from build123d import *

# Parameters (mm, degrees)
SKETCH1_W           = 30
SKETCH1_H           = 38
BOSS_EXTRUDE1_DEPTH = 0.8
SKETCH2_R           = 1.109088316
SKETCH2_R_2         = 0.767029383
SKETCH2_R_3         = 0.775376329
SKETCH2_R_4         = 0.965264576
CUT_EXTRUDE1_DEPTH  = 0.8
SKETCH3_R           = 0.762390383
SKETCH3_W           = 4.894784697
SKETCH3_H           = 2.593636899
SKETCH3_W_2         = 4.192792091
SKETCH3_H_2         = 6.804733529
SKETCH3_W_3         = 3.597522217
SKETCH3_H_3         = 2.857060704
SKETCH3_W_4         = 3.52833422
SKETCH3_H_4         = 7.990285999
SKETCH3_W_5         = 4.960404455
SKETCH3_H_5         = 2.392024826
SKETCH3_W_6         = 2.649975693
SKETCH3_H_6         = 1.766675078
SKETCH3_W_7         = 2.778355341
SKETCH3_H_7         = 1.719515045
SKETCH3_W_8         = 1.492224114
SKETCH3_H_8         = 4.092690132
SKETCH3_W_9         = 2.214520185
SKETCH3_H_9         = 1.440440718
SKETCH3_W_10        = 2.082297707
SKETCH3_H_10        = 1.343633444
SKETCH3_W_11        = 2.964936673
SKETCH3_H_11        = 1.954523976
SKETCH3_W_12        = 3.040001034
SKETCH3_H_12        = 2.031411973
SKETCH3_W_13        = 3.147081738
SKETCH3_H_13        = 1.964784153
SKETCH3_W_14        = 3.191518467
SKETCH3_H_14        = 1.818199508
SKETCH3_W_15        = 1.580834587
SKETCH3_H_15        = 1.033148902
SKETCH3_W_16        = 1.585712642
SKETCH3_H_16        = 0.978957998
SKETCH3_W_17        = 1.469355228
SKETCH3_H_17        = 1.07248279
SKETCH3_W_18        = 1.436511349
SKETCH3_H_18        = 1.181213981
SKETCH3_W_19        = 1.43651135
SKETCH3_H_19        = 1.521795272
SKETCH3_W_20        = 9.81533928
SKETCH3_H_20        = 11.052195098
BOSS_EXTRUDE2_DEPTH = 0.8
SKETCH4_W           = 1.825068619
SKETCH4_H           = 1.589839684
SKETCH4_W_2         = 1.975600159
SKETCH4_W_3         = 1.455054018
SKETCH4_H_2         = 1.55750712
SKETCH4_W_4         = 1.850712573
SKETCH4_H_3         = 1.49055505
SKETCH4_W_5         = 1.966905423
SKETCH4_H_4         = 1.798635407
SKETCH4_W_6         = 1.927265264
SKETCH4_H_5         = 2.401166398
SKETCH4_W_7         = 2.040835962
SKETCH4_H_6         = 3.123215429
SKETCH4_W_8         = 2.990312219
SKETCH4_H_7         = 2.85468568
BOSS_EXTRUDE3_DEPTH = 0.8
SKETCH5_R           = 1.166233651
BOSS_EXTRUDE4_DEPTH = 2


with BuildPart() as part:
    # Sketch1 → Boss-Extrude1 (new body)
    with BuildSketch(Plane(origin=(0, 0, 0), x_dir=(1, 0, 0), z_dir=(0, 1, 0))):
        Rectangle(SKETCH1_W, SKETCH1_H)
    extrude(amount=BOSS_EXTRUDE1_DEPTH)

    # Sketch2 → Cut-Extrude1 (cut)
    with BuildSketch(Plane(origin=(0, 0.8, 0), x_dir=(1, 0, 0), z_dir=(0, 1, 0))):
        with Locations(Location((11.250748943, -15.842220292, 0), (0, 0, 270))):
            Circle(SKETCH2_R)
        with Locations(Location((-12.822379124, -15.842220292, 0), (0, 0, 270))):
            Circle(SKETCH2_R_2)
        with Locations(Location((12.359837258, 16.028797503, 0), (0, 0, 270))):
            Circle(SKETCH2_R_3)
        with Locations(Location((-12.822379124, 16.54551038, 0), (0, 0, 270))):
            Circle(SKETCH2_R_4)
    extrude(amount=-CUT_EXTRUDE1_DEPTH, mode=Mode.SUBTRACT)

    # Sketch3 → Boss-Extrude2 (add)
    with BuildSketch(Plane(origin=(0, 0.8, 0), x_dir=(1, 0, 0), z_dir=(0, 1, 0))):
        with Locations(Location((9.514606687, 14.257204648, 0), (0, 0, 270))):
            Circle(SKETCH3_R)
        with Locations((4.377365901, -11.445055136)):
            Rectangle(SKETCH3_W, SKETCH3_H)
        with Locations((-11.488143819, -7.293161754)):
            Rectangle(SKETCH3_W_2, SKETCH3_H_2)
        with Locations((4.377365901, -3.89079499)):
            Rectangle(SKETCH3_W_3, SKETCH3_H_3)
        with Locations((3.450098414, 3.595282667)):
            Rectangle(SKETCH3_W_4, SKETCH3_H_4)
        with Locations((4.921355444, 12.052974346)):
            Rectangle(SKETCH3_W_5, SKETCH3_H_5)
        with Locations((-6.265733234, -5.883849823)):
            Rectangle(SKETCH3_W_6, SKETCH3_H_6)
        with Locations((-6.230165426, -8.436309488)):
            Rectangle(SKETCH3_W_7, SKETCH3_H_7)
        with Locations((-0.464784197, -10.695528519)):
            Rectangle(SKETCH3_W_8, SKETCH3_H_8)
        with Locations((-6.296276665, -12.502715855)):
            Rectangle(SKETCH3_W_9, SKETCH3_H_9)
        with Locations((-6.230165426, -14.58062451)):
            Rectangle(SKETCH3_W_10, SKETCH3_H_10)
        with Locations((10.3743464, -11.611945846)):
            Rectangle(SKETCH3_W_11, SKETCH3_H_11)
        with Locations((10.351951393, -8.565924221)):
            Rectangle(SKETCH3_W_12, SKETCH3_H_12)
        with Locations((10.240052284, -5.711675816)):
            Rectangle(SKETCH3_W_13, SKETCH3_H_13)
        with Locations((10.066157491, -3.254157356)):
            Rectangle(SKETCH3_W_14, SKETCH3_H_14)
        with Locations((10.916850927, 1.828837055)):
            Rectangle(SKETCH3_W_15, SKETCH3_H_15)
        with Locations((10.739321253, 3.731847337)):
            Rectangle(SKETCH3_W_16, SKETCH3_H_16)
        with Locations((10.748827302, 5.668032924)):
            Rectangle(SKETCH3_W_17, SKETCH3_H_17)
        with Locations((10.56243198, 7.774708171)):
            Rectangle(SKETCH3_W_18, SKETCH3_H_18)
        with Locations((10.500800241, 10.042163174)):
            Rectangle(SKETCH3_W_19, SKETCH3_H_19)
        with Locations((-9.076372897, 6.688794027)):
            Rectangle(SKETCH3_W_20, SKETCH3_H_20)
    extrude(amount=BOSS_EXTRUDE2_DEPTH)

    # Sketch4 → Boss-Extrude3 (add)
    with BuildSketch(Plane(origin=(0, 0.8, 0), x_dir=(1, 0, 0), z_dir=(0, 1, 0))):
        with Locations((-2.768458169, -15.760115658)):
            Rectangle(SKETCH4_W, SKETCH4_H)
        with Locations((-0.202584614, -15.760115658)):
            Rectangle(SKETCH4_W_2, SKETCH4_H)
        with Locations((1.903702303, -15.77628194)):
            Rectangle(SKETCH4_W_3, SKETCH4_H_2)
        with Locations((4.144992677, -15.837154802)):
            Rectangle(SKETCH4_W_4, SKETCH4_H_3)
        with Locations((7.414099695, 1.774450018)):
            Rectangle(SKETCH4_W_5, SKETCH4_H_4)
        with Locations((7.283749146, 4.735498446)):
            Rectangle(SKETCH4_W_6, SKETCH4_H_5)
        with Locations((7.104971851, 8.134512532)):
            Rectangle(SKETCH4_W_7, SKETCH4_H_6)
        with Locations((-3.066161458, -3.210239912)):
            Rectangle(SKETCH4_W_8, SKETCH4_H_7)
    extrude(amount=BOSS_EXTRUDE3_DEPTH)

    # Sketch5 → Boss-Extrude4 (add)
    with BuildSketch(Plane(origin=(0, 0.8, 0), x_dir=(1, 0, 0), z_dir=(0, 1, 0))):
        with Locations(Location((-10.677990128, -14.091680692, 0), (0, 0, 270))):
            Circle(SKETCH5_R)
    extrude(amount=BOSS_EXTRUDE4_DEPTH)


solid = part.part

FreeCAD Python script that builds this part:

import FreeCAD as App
import Part
import Sketcher

V = App.Vector
Q = App.Units.Quantity


def add_polygon(sketch, points):
    """Adds a closed chain of lines whose ends are joined by coincident constraints."""
    first, n = sketch.GeometryCount, len(points)
    for a, b in zip(points, points[1:] + points[:1]):
        sketch.addGeometry(Part.LineSegment(App.Vector(*a, 0), App.Vector(*b, 0)), False)
    for i in range(n):
        sketch.addConstraint(Sketcher.Constraint("Coincident", first + i, 2, first + (i + 1) % n, 1))

doc = App.newDocument("Part")
body = doc.addObject("PartDesign::Body", "Body")

sketch1 = body.newObject("Sketcher::SketchObject", "Sketch")
sketch1.AttachmentSupport = (doc.getObject("XZ_Plane"), [""])
sketch1.MapMode = "FlatFace"
add_polygon(sketch1, [(-15, -19), (-15, 19), (15, 19), (15, -19)])
sketch1.addConstraint(Sketcher.Constraint("Vertical", 0))
sketch1.addConstraint(Sketcher.Constraint("Horizontal", 1))
sketch1.addConstraint(Sketcher.Constraint("Vertical", 2))
sketch1.addConstraint(Sketcher.Constraint("Horizontal", 3))
sketch1.addConstraint(Sketcher.Constraint("Symmetric", 0, 2, 2, 2, -1, 1))
sketch1.addConstraint(Sketcher.Constraint("DistanceX", 1, 1, 1, 2, Q("30 mm")))
sketch1.addConstraint(Sketcher.Constraint("DistanceY", 0, 1, 0, 2, Q("38 mm")))
pad1 = body.newObject("PartDesign::Pad", "Pad")
pad1.Profile = sketch1
pad1.Length = 0.8
pad1.Reversed = True

sketch2 = body.newObject("Sketcher::SketchObject", "Sketch001")
sketch2.AttachmentSupport = (doc.getObject("XZ_Plane"), [""])
sketch2.MapMode = "FlatFace"
sketch2.AttachmentOffset = App.Placement(V(0, 0, -0.8), App.Rotation())
sketch2.addGeometry(Part.Circle(V(11.250749, 15.84222, 0), V(0, 0, 1), 1.109088), False)
sketch2.addGeometry(Part.Circle(V(-12.822379, 15.84222, 0), V(0, 0, 1), 0.767029), False)
sketch2.addGeometry(Part.Circle(V(12.359837, -16.028798, 0), V(0, 0, 1), 0.775376), False)
sketch2.addGeometry(Part.Circle(V(-12.822379, -16.54551, 0), V(0, 0, 1), 0.965265), False)
sketch2.addConstraint(Sketcher.Constraint("Horizontal", 0, 3, 1, 3))
sketch2.addConstraint(Sketcher.Constraint("Vertical", 1, 3, 3, 3))
sketch2.addConstraint(Sketcher.Constraint("Diameter", 1, Q("1.534059 mm")))
sketch2.addConstraint(Sketcher.Constraint("Diameter", 3, Q("1.930529 mm")))
sketch2.addConstraint(Sketcher.Constraint("Diameter", 0, Q("2.218177 mm")))
sketch2.addConstraint(Sketcher.Constraint("Diameter", 2, Q("1.550753 mm")))
sketch2.addConstraint(Sketcher.Constraint("DistanceX", -1, 1, 0, 3, Q("11.250749 mm")))
sketch2.addConstraint(Sketcher.Constraint("DistanceY", -1, 1, 0, 3, Q("15.84222 mm")))
sketch2.addConstraint(Sketcher.Constraint("DistanceX", 1, 3, -1, 1, Q("12.822379 mm")))
sketch2.addConstraint(Sketcher.Constraint("DistanceY", 3, 3, -1, 1, Q("16.54551 mm")))
sketch2.addConstraint(Sketcher.Constraint("DistanceX", 0, 3, 2, 3, Q("1.109088 mm")))
sketch2.addConstraint(Sketcher.Constraint("DistanceY", 2, 3, -1, 1, Q("16.028798 mm")))
pocket1 = body.newObject("PartDesign::Pocket", "Pocket")
pocket1.Profile = sketch2
pocket1.Length = 0.8
pocket1.Reversed = True

sketch3 = body.newObject("Sketcher::SketchObject", "Sketch002")
sketch3.AttachmentSupport = (doc.getObject("XZ_Plane"), [""])
sketch3.MapMode = "FlatFace"
sketch3.AttachmentOffset = App.Placement(V(0, 0, -0.8), App.Rotation())
sketch3.addGeometry(Part.Circle(V(9.514607, -14.257205, 0), V(0, 0, 1), 0.76239), False)
add_polygon(sketch3, [(1.929974, 10.148237), (1.929974, 12.741874), (6.824758, 12.741874), (6.824758, 10.148237)])
add_polygon(sketch3, [(-13.58454, 3.890795), (-13.58454, 10.695529), (-9.391748, 10.695529), (-9.391748, 3.890795)])
add_polygon(sketch3, [(2.578605, 2.462265), (2.578605, 5.319325), (6.176127, 5.319325), (6.176127, 2.462265)])
add_polygon(sketch3, [(1.685931, -7.590426), (1.685931, 0.39986), (5.214266, 0.39986), (5.214266, -7.590426)])
add_polygon(sketch3, [(2.441153, -13.248987), (2.441153, -10.856962), (7.401558, -10.856962), (7.401558, -13.248987)])
add_polygon(sketch3, [(-7.590721, 5.000512), (-7.590721, 6.767187), (-4.940745, 6.767187), (-4.940745, 5.000512)])
add_polygon(sketch3, [(-7.619343, 7.576552), (-7.619343, 9.296067), (-4.840988, 9.296067), (-4.840988, 7.576552)])
add_polygon(sketch3, [(-1.210896, 8.649183), (-1.210896, 12.741874), (0.281328, 12.741874), (0.281328, 8.649183)])
add_polygon(sketch3, [(-7.403537, 11.782495), (-7.403537, 13.222936), (-5.189017, 13.222936), (-5.189017, 11.782495)])
add_polygon(sketch3, [(-7.271314, 13.908808), (-7.271314, 15.252441), (-5.189017, 15.252441), (-5.189017, 13.908808)])
add_polygon(sketch3, [(8.891878, 10.634684), (8.891878, 12.589208), (11.856815, 12.589208), (11.856815, 10.634684)])
add_polygon(sketch3, [(8.831951, 7.550218), (8.831951, 9.58163), (11.871952, 9.58163), (11.871952, 7.550218)])
add_polygon(sketch3, [(8.666511, 4.729284), (8.666511, 6.694068), (11.813593, 6.694068), (11.813593, 4.729284)])
add_polygon(sketch3, [(8.470398, 2.345058), (8.470398, 4.163257), (11.661917, 4.163257), (11.661917, 2.345058)])
add_polygon(sketch3, [(10.126434, -2.345412), (10.126434, -1.312263), (11.707268, -1.312263), (11.707268, -2.345412)])
add_polygon(sketch3, [(9.946465, -4.221326), (9.946465, -3.242368), (11.532178, -3.242368), (11.532178, -4.221326)])
add_polygon(sketch3, [(10.01415, -6.204274), (10.01415, -5.131792), (11.483505, -5.131792), (11.483505, -6.204274)])
add_polygon(sketch3, [(9.844176, -8.365315), (9.844176, -7.184101), (11.280688, -7.184101), (11.280688, -8.365315)])
add_polygon(sketch3, [(9.782545, -10.803061), (9.782545, -9.281266), (11.219056, -9.281266), (11.219056, -10.803061)])
add_polygon(sketch3, [(-13.984043, -12.214892), (-13.984043, -1.162696), (-4.168703, -1.162696), (-4.168703, -12.214892)])
sketch3.addConstraint(Sketcher.Constraint("Vertical", 1))
sketch3.addConstraint(Sketcher.Constraint("Horizontal", 2))
sketch3.addConstraint(Sketcher.Constraint("Vertical", 3))
sketch3.addConstraint(Sketcher.Constraint("Horizontal", 4))
sketch3.addConstraint(Sketcher.Constraint("Vertical", 5))
sketch3.addConstraint(Sketcher.Constraint("Horizontal", 6))
sketch3.addConstraint(Sketcher.Constraint("Vertical", 7))
sketch3.addConstraint(Sketcher.Constraint("Horizontal", 8))
sketch3.addConstraint(Sketcher.Constraint("Vertical", 9))
sketch3.addConstraint(Sketcher.Constraint("Horizontal", 10))
sketch3.addConstraint(Sketcher.Constraint("Vertical", 11))
sketch3.addConstraint(Sketcher.Constraint("Horizontal", 12))
sketch3.addConstraint(Sketcher.Constraint("Vertical", 13))
sketch3.addConstraint(Sketcher.Constraint("Horizontal", 14))
sketch3.addConstraint(Sketcher.Constraint("Vertical", 15))
sketch3.addConstraint(Sketcher.Constraint("Horizontal", 16))
sketch3.addConstraint(Sketcher.Constraint("Vertical", 17))
sketch3.addConstraint(Sketcher.Constraint("Horizontal", 18))
sketch3.addConstraint(Sketcher.Constraint("Vertical", 19))
sketch3.addConstraint(Sketcher.Constraint("Horizontal", 20))
sketch3.addConstraint(Sketcher.Constraint("Vertical", 21))
sketch3.addConstraint(Sketcher.Constraint("Horizontal", 22))
sketch3.addConstraint(Sketcher.Constraint("Vertical", 23))
sketch3.addConstraint(Sketcher.Constraint("Horizontal", 24))
sketch3.addConstraint(Sketcher.Constraint("Vertical", 25))
sketch3.addConstraint(Sketcher.Constraint("Horizontal", 26))
sketch3.addConstraint(Sketcher.Constraint("Vertical", 27))
sketch3.addConstraint(Sketcher.Constraint("Horizontal", 28))
sketch3.addConstraint(Sketcher.Constraint("Vertical", 29))
sketch3.addConstraint(Sketcher.Constraint("Horizontal", 30))
sketch3.addConstraint(Sketcher.Constraint("Vertical", 31))
sketch3.addConstraint(Sketcher.Constraint("Horizontal", 32))
sketch3.addConstraint(Sketcher.Constraint("Vertical", 33))
sketch3.addConstraint(Sketcher.Constraint("Horizontal", 34))
sketch3.addConstraint(Sketcher.Constraint("Vertical", 35))
sketch3.addConstraint(Sketcher.Constraint("Horizontal", 36))
sketch3.addConstraint(Sketcher.Constraint("Vertical", 37))
sketch3.addConstraint(Sketcher.Constraint("Horizontal", 38))
sketch3.addConstraint(Sketcher.Constraint("Vertical", 39))
sketch3.addConstraint(Sketcher.Constraint("Horizontal", 40))
sketch3.addConstraint(Sketcher.Constraint("Vertical", 41))
sketch3.addConstraint(Sketcher.Constraint("Horizontal", 42))
sketch3.addConstraint(Sketcher.Constraint("Vertical", 43))
sketch3.addConstraint(Sketcher.Constraint("Horizontal", 44))
sketch3.addConstraint(Sketcher.Constraint("Vertical", 45))
sketch3.addConstraint(Sketcher.Constraint("Horizontal", 46))
sketch3.addConstraint(Sketcher.Constraint("Vertical", 47))
sketch3.addConstraint(Sketcher.Constraint("Horizontal", 48))
sketch3.addConstraint(Sketcher.Constraint("Vertical", 49))
sketch3.addConstraint(Sketcher.Constraint("Horizontal", 50))
sketch3.addConstraint(Sketcher.Constraint("Vertical", 51))
sketch3.addConstraint(Sketcher.Constraint("Horizontal", 52))
sketch3.addConstraint(Sketcher.Constraint("Vertical", 53))
sketch3.addConstraint(Sketcher.Constraint("Horizontal", 54))
sketch3.addConstraint(Sketcher.Constraint("Vertical", 55))
sketch3.addConstraint(Sketcher.Constraint("Horizontal", 56))
sketch3.addConstraint(Sketcher.Constraint("Vertical", 57))
sketch3.addConstraint(Sketcher.Constraint("Horizontal", 58))
sketch3.addConstraint(Sketcher.Constraint("Vertical", 59))
sketch3.addConstraint(Sketcher.Constraint("Horizontal", 60))
sketch3.addConstraint(Sketcher.Constraint("Vertical", 61))
sketch3.addConstraint(Sketcher.Constraint("Horizontal", 62))
sketch3.addConstraint(Sketcher.Constraint("Vertical", 63))
sketch3.addConstraint(Sketcher.Constraint("Horizontal", 64))
sketch3.addConstraint(Sketcher.Constraint("Vertical", 65))
sketch3.addConstraint(Sketcher.Constraint("Horizontal", 66))
sketch3.addConstraint(Sketcher.Constraint("Vertical", 67))
sketch3.addConstraint(Sketcher.Constraint("Horizontal", 68))
sketch3.addConstraint(Sketcher.Constraint("Vertical", 69))
sketch3.addConstraint(Sketcher.Constraint("Horizontal", 70))
sketch3.addConstraint(Sketcher.Constraint("Vertical", 71))
sketch3.addConstraint(Sketcher.Constraint("Horizontal", 72))
sketch3.addConstraint(Sketcher.Constraint("Vertical", 73))
sketch3.addConstraint(Sketcher.Constraint("Horizontal", 74))
sketch3.addConstraint(Sketcher.Constraint("Vertical", 75))
sketch3.addConstraint(Sketcher.Constraint("Horizontal", 76))
sketch3.addConstraint(Sketcher.Constraint("Vertical", 77))
sketch3.addConstraint(Sketcher.Constraint("Horizontal", 78))
sketch3.addConstraint(Sketcher.Constraint("Vertical", 79))
sketch3.addConstraint(Sketcher.Constraint("Horizontal", 80))
sketch3.addConstraint(Sketcher.Constraint("Horizontal", 2, 2, 29, 2))
sketch3.addConstraint(Sketcher.Constraint("Vertical", 35, 2, 38, 2))
sketch3.addConstraint(Sketcher.Constraint("Equal", 72, 74))
sketch3.addConstraint(Sketcher.Constraint("DistanceX", 46, 1, 46, 2, Q("3.040001 mm")))
sketch3.addConstraint(Sketcher.Constraint("Diameter", 0, Q("1.524781 mm")))
sketch3.addConstraint(Sketcher.Constraint("DistanceY", 53, 1, 53, 2, Q("1.8182 mm")))
sketch3.addConstraint(Sketcher.Constraint("DistanceX", 34, 1, 34, 2, Q("2.21452 mm")))
sketch3.addConstraint(Sketcher.Constraint("DistanceX", 50, 1, 50, 2, Q("3.147082 mm")))
sketch3.addConstraint(Sketcher.Constraint("DistanceX", 54, 1, 54, 2, Q("3.191518 mm")))
sketch3.addConstraint(Sketcher.Constraint("DistanceX", 70, 1, 70, 2, Q("1.436511 mm")))
sketch3.addConstraint(Sketcher.Constraint("DistanceX", 78, 1, 78, 2, Q("9.815339 mm")))
sketch3.addConstraint(Sketcher.Constraint("DistanceY", 9, 1, 9, 2, Q("2.857061 mm")))
sketch3.addConstraint(Sketcher.Constraint("DistanceY", 29, 1, 29, 2, Q("4.09269 mm")))
sketch3.addConstraint(Sketcher.Constraint("DistanceY", 33, 1, 33, 2, Q("1.440441 mm")))
sketch3.addConstraint(Sketcher.Constraint("DistanceY", 45, 1, 45, 2, Q("2.031412 mm")))
sketch3.addConstraint(Sketcher.Constraint("DistanceY", 57, 1, 57, 2, Q("1.033149 mm")))
sketch3.addConstraint(Sketcher.Constraint("DistanceX", -1, 1, 53, 2, Q("8.470398 mm")))
sketch3.addConstraint(Sketcher.Constraint("DistanceY", 69, 2, -1, 1, Q("7.184101 mm")))
sketch3.addConstraint(Sketcher.Constraint("DistanceX", 2, 1, 2, 2, Q("4.894785 mm")))
sketch3.addConstraint(Sketcher.Constraint("DistanceX", 6, 1, 6, 2, Q("4.192792 mm")))
sketch3.addConstraint(Sketcher.Constraint("DistanceX", 10, 1, 10, 2, Q("3.597522 mm")))
sketch3.addConstraint(Sketcher.Constraint("DistanceX", 14, 1, 14, 2, Q("3.528334 mm")))
sketch3.addConstraint(Sketcher.Constraint("DistanceX", 18, 1, 18, 2, Q("4.960404 mm")))
sketch3.addConstraint(Sketcher.Constraint("DistanceX", 22, 1, 22, 2, Q("2.649976 mm")))
sketch3.addConstraint(Sketcher.Constraint("DistanceX", 26, 1, 26, 2, Q("2.778355 mm")))
sketch3.addConstraint(Sketcher.Constraint("DistanceX", 30, 1, 30, 2, Q("1.492224 mm")))
sketch3.addConstraint(Sketcher.Constraint("DistanceX", 38, 1, 38, 2, Q("2.082298 mm")))
sketch3.addConstraint(Sketcher.Constraint("DistanceX", 42, 1, 42, 2, Q("2.964937 mm")))
sketch3.addConstraint(Sketcher.Constraint("DistanceX", 58, 1, 58, 2, Q("1.580835 mm")))
sketch3.addConstraint(Sketcher.Constraint("DistanceX", 62, 1, 62, 2, Q("1.585713 mm")))
sketch3.addConstraint(Sketcher.Constraint("DistanceX", 66, 1, 66, 2, Q("1.469355 mm")))
sketch3.addConstraint(Sketcher.Constraint("DistanceY", 1, 1, 1, 2, Q("2.593637 mm")))
sketch3.addConstraint(Sketcher.Constraint("DistanceY", 5, 1, 5, 2, Q("6.804734 mm")))
sketch3.addConstraint(Sketcher.Constraint("DistanceY", 13, 1, 13, 2, Q("7.990286 mm")))
sketch3.addConstraint(Sketcher.Constraint("DistanceY", 17, 1, 17, 2, Q("2.392025 mm")))
sketch3.addConstraint(Sketcher.Constraint("DistanceY", 21, 1, 21, 2, Q("1.766675 mm")))
sketch3.addConstraint(Sketcher.Constraint("DistanceY", 25, 1, 25, 2, Q("1.719515 mm")))
sketch3.addConstraint(Sketcher.Constraint("DistanceY", 37, 1, 37, 2, Q("1.343633 mm")))
sketch3.addConstraint(Sketcher.Constraint("DistanceY", 41, 1, 41, 2, Q("1.954524 mm")))
sketch3.addConstraint(Sketcher.Constraint("DistanceY", 49, 1, 49, 2, Q("1.964784 mm")))
sketch3.addConstraint(Sketcher.Constraint("DistanceY", 61, 1, 61, 2, Q("0.978958 mm")))
sketch3.addConstraint(Sketcher.Constraint("DistanceY", 65, 1, 65, 2, Q("1.072483 mm")))
sketch3.addConstraint(Sketcher.Constraint("DistanceY", 69, 1, 69, 2, Q("1.181214 mm")))
sketch3.addConstraint(Sketcher.Constraint("DistanceY", 73, 1, 73, 2, Q("1.521795 mm")))
sketch3.addConstraint(Sketcher.Constraint("DistanceY", 77, 1, 77, 2, Q("11.052195 mm")))
sketch3.addConstraint(Sketcher.Constraint("DistanceX", -1, 1, 2, 2, Q("6.824758 mm")))
sketch3.addConstraint(Sketcher.Constraint("DistanceX", 5, 2, -1, 1, Q("13.58454 mm")))
sketch3.addConstraint(Sketcher.Constraint("DistanceY", -1, 1, 5, 2, Q("10.695529 mm")))
sketch3.addConstraint(Sketcher.Constraint("DistanceX", -1, 1, 13, 2, Q("1.685931 mm")))
sketch3.addConstraint(Sketcher.Constraint("DistanceY", -1, 1, 13, 2, Q("0.39986 mm")))
sketch3.addConstraint(Sketcher.Constraint("DistanceY", 17, 2, -1, 1, Q("10.856962 mm")))
sketch3.addConstraint(Sketcher.Constraint("DistanceX", 21, 2, -1, 1, Q("7.590721 mm")))
sketch3.addConstraint(Sketcher.Constraint("DistanceY", -1, 1, 27, 2, Q("7.576552 mm")))
sketch3.addConstraint(Sketcher.Constraint("DistanceY", -1, 1, 37, 2, Q("15.252441 mm")))
sketch3.addConstraint(Sketcher.Constraint("DistanceX", -1, 1, 41, 2, Q("8.891878 mm")))
sketch3.addConstraint(Sketcher.Constraint("DistanceX", -1, 1, 45, 2, Q("8.831951 mm")))
sketch3.addConstraint(Sketcher.Constraint("DistanceY", -1, 1, 45, 2, Q("9.58163 mm")))
sketch3.addConstraint(Sketcher.Constraint("DistanceX", -1, 1, 49, 2, Q("8.666511 mm")))
sketch3.addConstraint(Sketcher.Constraint("DistanceX", -1, 1, 58, 2, Q("11.707268 mm")))
sketch3.addConstraint(Sketcher.Constraint("DistanceY", 59, 2, -1, 1, Q("2.345412 mm")))
sketch3.addConstraint(Sketcher.Constraint("DistanceY", 61, 2, -1, 1, Q("3.242368 mm")))
sketch3.addConstraint(Sketcher.Constraint("DistanceX", -1, 1, 65, 2, Q("10.01415 mm")))
sketch3.addConstraint(Sketcher.Constraint("DistanceY", 65, 2, -1, 1, Q("5.131792 mm")))
sketch3.addConstraint(Sketcher.Constraint("DistanceY", 75, 2, -1, 1, Q("10.803061 mm")))
sketch3.addConstraint(Sketcher.Constraint("DistanceY", 79, 2, -1, 1, Q("12.214892 mm")))
sketch3.addConstraint(Sketcher.Constraint("DistanceX", -1, 1, 0, 3, Q("9.514607 mm")))
sketch3.addConstraint(Sketcher.Constraint("DistanceY", 0, 3, -1, 1, Q("14.257205 mm")))
sketch3.addConstraint(Sketcher.Constraint("DistanceY", -1, 1, 1, 2, Q("12.741874 mm")))
sketch3.addConstraint(Sketcher.Constraint("DistanceX", -1, 1, 9, 2, Q("2.578605 mm")))
sketch3.addConstraint(Sketcher.Constraint("DistanceY", -1, 1, 9, 2, Q("5.319325 mm")))
sketch3.addConstraint(Sketcher.Constraint("DistanceX", -1, 1, 17, 2, Q("2.441153 mm")))
sketch3.addConstraint(Sketcher.Constraint("DistanceY", -1, 1, 21, 2, Q("6.767187 mm")))
sketch3.addConstraint(Sketcher.Constraint("DistanceX", 25, 2, -1, 1, Q("7.619343 mm")))
sketch3.addConstraint(Sketcher.Constraint("DistanceX", 29, 2, -1, 1, Q("1.210896 mm")))
sketch3.addConstraint(Sketcher.Constraint("DistanceX", 33, 2, -1, 1, Q("7.403537 mm")))
sketch3.addConstraint(Sketcher.Constraint("DistanceY", -1, 1, 33, 2, Q("13.222936 mm")))
sketch3.addConstraint(Sketcher.Constraint("DistanceY", -1, 1, 41, 2, Q("12.589208 mm")))
sketch3.addConstraint(Sketcher.Constraint("DistanceY", -1, 1, 49, 2, Q("6.694068 mm")))
sketch3.addConstraint(Sketcher.Constraint("DistanceY", -1, 1, 53, 2, Q("4.163257 mm")))
sketch3.addConstraint(Sketcher.Constraint("DistanceX", -1, 1, 61, 2, Q("9.946465 mm")))
sketch3.addConstraint(Sketcher.Constraint("DistanceX", -1, 1, 69, 2, Q("9.844176 mm")))
sketch3.addConstraint(Sketcher.Constraint("DistanceX", -1, 1, 73, 2, Q("9.782545 mm")))
sketch3.addConstraint(Sketcher.Constraint("DistanceX", 77, 2, -1, 1, Q("13.984043 mm")))
pad2 = body.newObject("PartDesign::Pad", "Pad001")
pad2.Profile = sketch3
pad2.Length = 0.8
pad2.Reversed = True

sketch4 = body.newObject("Sketcher::SketchObject", "Sketch003")
sketch4.AttachmentSupport = (doc.getObject("XZ_Plane"), [""])
sketch4.MapMode = "FlatFace"
sketch4.AttachmentOffset = App.Placement(V(0, 0, -0.8), App.Rotation())
add_polygon(sketch4, [(-3.680992, 14.965196), (-3.680992, 16.555035), (-1.855924, 16.555035), (-1.855924, 14.965196)])
add_polygon(sketch4, [(-1.190385, 14.965196), (-1.190385, 16.555035), (0.785215, 16.555035), (0.785215, 14.965196)])
add_polygon(sketch4, [(1.176175, 14.997528), (1.176175, 16.555035), (2.631229, 16.555035), (2.631229, 14.997528)])
add_polygon(sketch4, [(3.219636, 15.091877), (3.219636, 16.582432), (5.070349, 16.582432), (5.070349, 15.091877)])
add_polygon(sketch4, [(6.430647, -2.673768), (6.430647, -0.875132), (8.397552, -0.875132), (8.397552, -2.673768)])
add_polygon(sketch4, [(6.320117, -5.936082), (6.320117, -3.534915), (8.247382, -3.534915), (8.247382, -5.936082)])
add_polygon(sketch4, [(6.084554, -9.69612), (6.084554, -6.572905), (8.12539, -6.572905), (8.12539, -9.69612)])
add_polygon(sketch4, [(-4.561318, 1.782897), (-4.561318, 4.637583), (-1.571005, 4.637583), (-1.571005, 1.782897)])
sketch4.addConstraint(Sketcher.Constraint("Vertical", 0))
sketch4.addConstraint(Sketcher.Constraint("Horizontal", 1))
sketch4.addConstraint(Sketcher.Constraint("Vertical", 2))
sketch4.addConstraint(Sketcher.Constraint("Horizontal", 3))
sketch4.addConstraint(Sketcher.Constraint("Vertical", 4))
sketch4.addConstraint(Sketcher.Constraint("Horizontal", 5))
sketch4.addConstraint(Sketcher.Constraint("Vertical", 6))
sketch4.addConstraint(Sketcher.Constraint("Horizontal", 7))
sketch4.addConstraint(Sketcher.Constraint("Vertical", 8))
sketch4.addConstraint(Sketcher.Constraint("Horizontal", 9))
sketch4.addConstraint(Sketcher.Constraint("Vertical", 10))
sketch4.addConstraint(Sketcher.Constraint("Horizontal", 11))
sketch4.addConstraint(Sketcher.Constraint("Vertical", 12))
sketch4.addConstraint(Sketcher.Constraint("Horizontal", 13))
sketch4.addConstraint(Sketcher.Constraint("Vertical", 14))
sketch4.addConstraint(Sketcher.Constraint("Horizontal", 15))
sketch4.addConstraint(Sketcher.Constraint("Vertical", 16))
sketch4.addConstraint(Sketcher.Constraint("Horizontal", 17))
sketch4.addConstraint(Sketcher.Constraint("Vertical", 18))
sketch4.addConstraint(Sketcher.Constraint("Horizontal", 19))
sketch4.addConstraint(Sketcher.Constraint("Vertical", 20))
sketch4.addConstraint(Sketcher.Constraint("Horizontal", 21))
sketch4.addConstraint(Sketcher.Constraint("Vertical", 22))
sketch4.addConstraint(Sketcher.Constraint("Horizontal", 23))
sketch4.addConstraint(Sketcher.Constraint("Vertical", 24))
sketch4.addConstraint(Sketcher.Constraint("Horizontal", 25))
sketch4.addConstraint(Sketcher.Constraint("Vertical", 26))
sketch4.addConstraint(Sketcher.Constraint("Horizontal", 27))
sketch4.addConstraint(Sketcher.Constraint("Vertical", 28))
sketch4.addConstraint(Sketcher.Constraint("Horizontal", 29))
sketch4.addConstraint(Sketcher.Constraint("Vertical", 30))
sketch4.addConstraint(Sketcher.Constraint("Horizontal", 31))
sketch4.addConstraint(Sketcher.Constraint("Horizontal", 1, 2, 4, 2))
sketch4.addConstraint(Sketcher.Constraint("Horizontal", 3, 2, 6, 2))
sketch4.addConstraint(Sketcher.Constraint("Horizontal", 5, 2, 8, 2))
sketch4.addConstraint(Sketcher.Constraint("DistanceX", 5, 1, 5, 2, Q("1.9756 mm")))
sketch4.addConstraint(Sketcher.Constraint("DistanceX", 1, 1, 1, 2, Q("1.825069 mm")))
sketch4.addConstraint(Sketcher.Constraint("DistanceY", 0, 1, 0, 2, Q("1.58984 mm")))
sketch4.addConstraint(Sketcher.Constraint("DistanceX", 1, 2, 8, 2, Q("3.032099 mm")))
sketch4.addConstraint(Sketcher.Constraint("DistanceX", 14, 2, 16, 2, Q("1.360298 mm")))
sketch4.addConstraint(Sketcher.Constraint("DistanceX", 9, 1, 9, 2, Q("1.455054 mm")))
sketch4.addConstraint(Sketcher.Constraint("DistanceX", 13, 1, 13, 2, Q("1.850713 mm")))
sketch4.addConstraint(Sketcher.Constraint("DistanceX", 17, 1, 17, 2, Q("1.966905 mm")))
sketch4.addConstraint(Sketcher.Constraint("DistanceX", 21, 1, 21, 2, Q("1.927265 mm")))
sketch4.addConstraint(Sketcher.Constraint("DistanceX", 25, 1, 25, 2, Q("2.040836 mm")))
sketch4.addConstraint(Sketcher.Constraint("DistanceX", 29, 1, 29, 2, Q("2.990312 mm")))
sketch4.addConstraint(Sketcher.Constraint("DistanceY", 8, 1, 8, 2, Q("1.557507 mm")))
sketch4.addConstraint(Sketcher.Constraint("DistanceY", 12, 1, 12, 2, Q("1.490555 mm")))
sketch4.addConstraint(Sketcher.Constraint("DistanceY", 16, 1, 16, 2, Q("1.798635 mm")))
sketch4.addConstraint(Sketcher.Constraint("DistanceY", 20, 1, 20, 2, Q("2.401166 mm")))
sketch4.addConstraint(Sketcher.Constraint("DistanceY", 24, 1, 24, 2, Q("3.123215 mm")))
sketch4.addConstraint(Sketcher.Constraint("DistanceY", 28, 1, 28, 2, Q("2.854686 mm")))
sketch4.addConstraint(Sketcher.Constraint("DistanceX", -1, 1, 9, 2, Q("2.631229 mm")))
sketch4.addConstraint(Sketcher.Constraint("DistanceY", -1, 1, 10, 2, Q("14.997528 mm")))
sketch4.addConstraint(Sketcher.Constraint("DistanceX", -1, 1, 13, 2, Q("5.070349 mm")))
sketch4.addConstraint(Sketcher.Constraint("DistanceX", -1, 1, 21, 2, Q("8.247382 mm")))
sketch4.addConstraint(Sketcher.Constraint("DistanceY", 22, 2, -1, 1, Q("5.936082 mm")))
sketch4.addConstraint(Sketcher.Constraint("DistanceX", -1, 1, 25, 2, Q("8.12539 mm")))
sketch4.addConstraint(Sketcher.Constraint("DistanceY", 26, 2, -1, 1, Q("9.69612 mm")))
sketch4.addConstraint(Sketcher.Constraint("DistanceX", 1, 2, 4, 2, Q("0.665539 mm")))
sketch4.addConstraint(Sketcher.Constraint("DistanceY", 10, 2, 14, 2, Q("0.094349 mm")))
sketch4.addConstraint(Sketcher.Constraint("DistanceY", 16, 2, 14, 2, Q("15.96701 mm")))
sketch4.addConstraint(Sketcher.Constraint("DistanceX", 2, 2, 29, 2, Q("0.284919 mm")))
sketch4.addConstraint(Sketcher.Constraint("DistanceY", 16, 2, 30, 2, Q("2.658029 mm")))
pad3 = body.newObject("PartDesign::Pad", "Pad002")
pad3.Profile = sketch4
pad3.Length = 0.8
pad3.Reversed = True

sketch5 = body.newObject("Sketcher::SketchObject", "Sketch004")
sketch5.AttachmentSupport = (doc.getObject("XZ_Plane"), [""])
sketch5.MapMode = "FlatFace"
sketch5.AttachmentOffset = App.Placement(V(0, 0, -0.8), App.Rotation())
sketch5.addGeometry(Part.Circle(V(-10.67799, 14.091681, 0), V(0, 0, 1), 1.166234), False)
sketch5.addConstraint(Sketcher.Constraint("Diameter", 0, Q("2.332467 mm")))
sketch5.addConstraint(Sketcher.Constraint("DistanceX", 0, 3, -1, 1, Q("10.67799 mm")))
sketch5.addConstraint(Sketcher.Constraint("DistanceY", -1, 1, 0, 3, Q("14.091681 mm")))
pad4 = body.newObject("PartDesign::Pad", "Pad003")
pad4.Profile = sketch5
pad4.Length = 2
pad4.Reversed = True

doc.recompute()
